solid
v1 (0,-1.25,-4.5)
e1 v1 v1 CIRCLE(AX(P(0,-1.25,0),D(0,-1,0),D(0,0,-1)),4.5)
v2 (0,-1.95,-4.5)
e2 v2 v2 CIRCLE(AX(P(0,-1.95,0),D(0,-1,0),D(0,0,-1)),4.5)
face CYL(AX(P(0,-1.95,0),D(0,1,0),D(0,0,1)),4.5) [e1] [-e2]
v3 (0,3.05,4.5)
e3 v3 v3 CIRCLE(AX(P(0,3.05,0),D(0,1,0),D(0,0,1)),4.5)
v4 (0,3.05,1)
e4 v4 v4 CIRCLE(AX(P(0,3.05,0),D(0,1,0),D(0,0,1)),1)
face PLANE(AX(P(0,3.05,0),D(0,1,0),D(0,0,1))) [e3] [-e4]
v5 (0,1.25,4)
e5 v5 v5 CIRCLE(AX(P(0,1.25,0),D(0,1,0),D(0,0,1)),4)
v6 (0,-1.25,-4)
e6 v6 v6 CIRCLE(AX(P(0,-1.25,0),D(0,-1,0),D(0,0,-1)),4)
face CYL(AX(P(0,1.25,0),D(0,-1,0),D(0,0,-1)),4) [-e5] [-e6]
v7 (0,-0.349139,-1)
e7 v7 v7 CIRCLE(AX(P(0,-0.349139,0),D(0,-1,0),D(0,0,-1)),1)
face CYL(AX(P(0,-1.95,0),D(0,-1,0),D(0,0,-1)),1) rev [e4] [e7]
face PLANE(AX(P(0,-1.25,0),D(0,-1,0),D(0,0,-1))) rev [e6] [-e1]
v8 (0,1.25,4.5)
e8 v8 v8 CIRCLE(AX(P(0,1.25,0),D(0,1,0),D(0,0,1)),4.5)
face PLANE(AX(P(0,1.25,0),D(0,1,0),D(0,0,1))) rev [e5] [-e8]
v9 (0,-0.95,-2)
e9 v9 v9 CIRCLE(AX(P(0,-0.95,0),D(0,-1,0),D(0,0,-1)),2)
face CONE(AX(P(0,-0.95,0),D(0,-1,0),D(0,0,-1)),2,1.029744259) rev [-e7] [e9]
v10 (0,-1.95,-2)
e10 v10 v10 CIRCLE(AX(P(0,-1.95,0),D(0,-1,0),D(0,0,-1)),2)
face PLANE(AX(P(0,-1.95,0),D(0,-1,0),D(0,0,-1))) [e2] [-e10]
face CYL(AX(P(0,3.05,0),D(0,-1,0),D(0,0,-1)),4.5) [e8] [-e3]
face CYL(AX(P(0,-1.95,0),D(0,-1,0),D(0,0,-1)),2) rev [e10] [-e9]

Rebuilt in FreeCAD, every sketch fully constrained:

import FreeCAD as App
import Part
import Sketcher
Q = App.Units.Quantity


def add_polygon(sketch, points):
    """Adds a closed chain of lines whose ends are joined by coincident constraints."""
    first, n = sketch.GeometryCount, len(points)
    for a, b in zip(points, points[1:] + points[:1]):
        sketch.addGeometry(Part.LineSegment(App.Vector(*a, 0), App.Vector(*b, 0)), False)
    for i in range(n):
        sketch.addConstraint(Sketcher.Constraint("Coincident", first + i, 2, first + (i + 1) % n, 1))

doc = App.newDocument("Part")
body = doc.addObject("PartDesign::Body", "Body")

sketch1 = body.newObject("Sketcher::SketchObject", "Sketch")
sketch1.AttachmentSupport = (doc.getObject("XZ_Plane"), [""])
sketch1.MapMode = "FlatFace"
sketch1.addGeometry(Part.Circle(App.Vector(0, 0, 0), App.Vector(0, 0, 1), 4), False)
sketch1.addConstraint([
    Sketcher.Constraint("Coincident", 0, 3, -1, 1),
    Sketcher.Constraint("Diameter", 0, 8.0),
])
pad1 = body.newObject("PartDesign::Pad", "Pad")
pad1.Profile = sketch1
pad1.Length = 2.5
pad1.Midplane = True

sketch2 = body.newObject("Sketcher::SketchObject", "Sketch001")
sketch2.AttachmentSupport = (doc.getObject("XZ_Plane"), [""])
sketch2.MapMode = "FlatFace"
sketch2.AttachmentOffset = App.Placement(App.Vector(0, 0, -1.25), App.Rotation())
sketch2.addGeometry(Part.Circle(App.Vector(0, 0, 0), App.Vector(0, 0, 1), 4.5), False)
sketch2.addConstraint([
    Sketcher.Constraint("Coincident", 0, 3, -1, 1),
    Sketcher.Constraint("Diameter", 0, 9.0),
])
pad2 = body.newObject("PartDesign::Pad", "Pad001")
pad2.Profile = sketch2
pad2.Length = 1.8
pad2.Reversed = True

sketch3 = body.newObject("Sketcher::SketchObject", "Sketch002")
sketch3.AttachmentSupport = (doc.getObject("XZ_Plane"), [""])
sketch3.MapMode = "FlatFace"
sketch3.AttachmentOffset = App.Placement(App.Vector(0, 0, 1.95), App.Rotation())
sketch3.addGeometry(Part.Circle(App.Vector(0, 0, 0), App.Vector(0, 0, 1), 4.5), False)
sketch3.addConstraint([
    Sketcher.Constraint("Coincident", 0, 3, -1, 1),
    Sketcher.Constraint("Diameter", 0, 9.0),
])
pad3 = body.newObject("PartDesign::Pad", "Pad002")
pad3.Profile = sketch3
pad3.Length = 0.7
pad3.Reversed = True

sketch4 = body.newObject("Sketcher::SketchObject", "Sketch003")
sketch4.AttachmentSupport = (doc.getObject("YZ_Plane"), [""])
sketch4.MapMode = "FlatFace"
add_polygon(sketch4, [(8.7, 0), (-1.9, 0), (-1.9, -2), (-0.9, -2), (-0.3, -1), (8.1, -1)])
sketch4.addConstraint([
    Sketcher.Constraint("Horizontal", 0),
    Sketcher.Constraint("Vertical", 1),
    Sketcher.Constraint("Horizontal", 2),
    Sketcher.Constraint("Horizontal", 4),
    Sketcher.Constraint("PointOnObject", 0, 2, -1),
    Sketcher.Constraint("Parallel", 3, 5),
    Sketcher.Constraint("Equal", 3, 5),
    Sketcher.Constraint("DistanceX", 2, 1, 2, 2, 1.0),
    Sketcher.Constraint("DistanceY", 1, 2, 1, 1, 2.0),
    Sketcher.Constraint("Angle", 3, Q("59 deg")),
    Sketcher.Constraint("DistanceX", 2, 2, 4, 2, 9.0),
    Sketcher.Constraint("DistanceX", 0, 2, -1, 1, 1.95),
])
groove = body.newObject("PartDesign::Groove", "Groove")
groove.Profile = sketch4
groove.ReferenceAxis = (sketch4, ["H_Axis"])
groove.Angle = 360

doc.recompute()
